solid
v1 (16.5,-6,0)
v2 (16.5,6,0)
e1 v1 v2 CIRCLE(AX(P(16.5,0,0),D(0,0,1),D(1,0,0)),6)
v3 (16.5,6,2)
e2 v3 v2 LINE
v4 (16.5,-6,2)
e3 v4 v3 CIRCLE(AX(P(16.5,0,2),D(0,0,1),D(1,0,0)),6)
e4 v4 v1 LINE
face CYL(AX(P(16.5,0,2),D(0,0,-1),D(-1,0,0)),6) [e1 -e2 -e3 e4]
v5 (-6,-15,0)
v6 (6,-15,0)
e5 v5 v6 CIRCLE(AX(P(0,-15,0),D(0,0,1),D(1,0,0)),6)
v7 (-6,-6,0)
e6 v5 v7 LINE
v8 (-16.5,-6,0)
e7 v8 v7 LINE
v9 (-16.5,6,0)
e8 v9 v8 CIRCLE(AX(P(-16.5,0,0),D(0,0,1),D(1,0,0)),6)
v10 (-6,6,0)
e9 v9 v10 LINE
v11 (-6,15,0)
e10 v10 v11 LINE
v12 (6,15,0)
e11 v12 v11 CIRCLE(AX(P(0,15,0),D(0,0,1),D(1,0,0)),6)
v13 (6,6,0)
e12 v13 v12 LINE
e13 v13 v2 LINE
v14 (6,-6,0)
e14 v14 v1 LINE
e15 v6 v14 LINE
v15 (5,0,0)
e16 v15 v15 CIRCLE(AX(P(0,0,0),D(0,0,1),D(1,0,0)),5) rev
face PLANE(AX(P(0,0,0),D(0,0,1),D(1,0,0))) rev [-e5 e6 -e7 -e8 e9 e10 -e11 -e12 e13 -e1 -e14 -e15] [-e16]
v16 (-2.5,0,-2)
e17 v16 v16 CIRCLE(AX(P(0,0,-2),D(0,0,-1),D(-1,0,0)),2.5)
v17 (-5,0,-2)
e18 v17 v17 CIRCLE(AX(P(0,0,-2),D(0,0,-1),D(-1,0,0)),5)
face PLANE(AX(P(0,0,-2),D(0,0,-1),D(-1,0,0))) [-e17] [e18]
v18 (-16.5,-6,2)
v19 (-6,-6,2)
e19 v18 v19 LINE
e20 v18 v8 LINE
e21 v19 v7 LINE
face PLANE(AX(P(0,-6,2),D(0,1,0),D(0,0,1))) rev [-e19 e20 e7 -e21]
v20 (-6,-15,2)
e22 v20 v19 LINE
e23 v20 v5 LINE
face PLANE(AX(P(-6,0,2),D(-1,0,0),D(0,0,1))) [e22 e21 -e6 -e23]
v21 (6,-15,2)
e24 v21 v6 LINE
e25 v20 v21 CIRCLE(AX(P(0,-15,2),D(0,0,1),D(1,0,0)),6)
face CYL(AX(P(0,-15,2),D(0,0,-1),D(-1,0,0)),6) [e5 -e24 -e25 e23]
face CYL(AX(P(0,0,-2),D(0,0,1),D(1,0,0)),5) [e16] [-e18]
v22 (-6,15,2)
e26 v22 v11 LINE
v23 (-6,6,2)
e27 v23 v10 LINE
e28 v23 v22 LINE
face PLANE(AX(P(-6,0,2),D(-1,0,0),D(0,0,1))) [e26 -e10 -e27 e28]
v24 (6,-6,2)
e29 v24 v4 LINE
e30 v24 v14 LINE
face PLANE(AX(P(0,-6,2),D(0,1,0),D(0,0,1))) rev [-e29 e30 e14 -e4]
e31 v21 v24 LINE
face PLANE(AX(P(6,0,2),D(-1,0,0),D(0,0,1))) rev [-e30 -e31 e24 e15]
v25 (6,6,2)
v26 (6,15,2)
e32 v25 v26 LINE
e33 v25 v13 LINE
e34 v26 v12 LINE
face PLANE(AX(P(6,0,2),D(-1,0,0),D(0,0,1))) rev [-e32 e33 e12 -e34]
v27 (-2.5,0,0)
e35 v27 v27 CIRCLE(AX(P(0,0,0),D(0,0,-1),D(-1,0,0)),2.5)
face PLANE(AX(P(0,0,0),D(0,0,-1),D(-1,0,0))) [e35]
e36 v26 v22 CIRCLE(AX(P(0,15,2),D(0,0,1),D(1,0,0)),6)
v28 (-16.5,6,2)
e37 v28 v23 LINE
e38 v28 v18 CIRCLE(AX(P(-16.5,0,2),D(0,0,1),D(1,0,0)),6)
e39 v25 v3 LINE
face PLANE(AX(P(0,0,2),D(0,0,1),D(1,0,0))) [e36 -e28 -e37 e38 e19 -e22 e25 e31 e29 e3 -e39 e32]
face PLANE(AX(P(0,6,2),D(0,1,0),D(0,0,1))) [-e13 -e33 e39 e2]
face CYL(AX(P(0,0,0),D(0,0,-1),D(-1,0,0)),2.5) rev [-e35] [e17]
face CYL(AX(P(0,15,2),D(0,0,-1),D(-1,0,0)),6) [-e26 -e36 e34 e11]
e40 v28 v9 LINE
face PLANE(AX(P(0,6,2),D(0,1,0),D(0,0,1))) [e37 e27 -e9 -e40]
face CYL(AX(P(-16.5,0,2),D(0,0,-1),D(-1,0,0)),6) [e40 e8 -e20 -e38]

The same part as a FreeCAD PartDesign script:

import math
import FreeCAD as App
import Part
import Sketcher
from FreeCAD import Vector

doc = App.newDocument("Part")
body = doc.addObject("PartDesign::Body", "Body")

sketch1 = body.newObject("Sketcher::SketchObject", "Sketch")
sketch1.AttachmentSupport = (doc.getObject("XY_Plane"), [""])
sketch1.MapMode = "FlatFace"
sketch1.addGeometry([
    Part.LineSegment(Vector(16.5, 6, 0), Vector(6, 6, 0)),
    Part.LineSegment(Vector(6, 6, 0), Vector(6, 15, 0)),
    Part.ArcOfCircle(Part.Circle(Vector(0, 15, 0), Vector(0, 0, 1), 6), math.radians(0), math.radians(180)),
    Part.LineSegment(Vector(-6, 15, 0), Vector(-6, 6, 0)),
    Part.LineSegment(Vector(-6, 6, 0), Vector(-16.5, 6, 0)),
    Part.ArcOfCircle(Part.Circle(Vector(-16.5, 0, 0), Vector(0, 0, 1), 6), math.radians(90), math.radians(270)),
    Part.LineSegment(Vector(-16.5, -6, 0), Vector(-6, -6, 0)),
    Part.LineSegment(Vector(-6, -6, 0), Vector(-6, -15, 0)),
    Part.ArcOfCircle(Part.Circle(Vector(0, -15, 0), Vector(0, 0, 1), 6), math.radians(180), math.radians(360)),
    Part.LineSegment(Vector(6, -15, 0), Vector(6, -6, 0)),
    Part.LineSegment(Vector(6, -6, 0), Vector(16.5, -6, 0)),
    Part.ArcOfCircle(Part.Circle(Vector(16.5, 0, 0), Vector(0, 0, 1), 6), math.radians(-90), math.radians(90)),
], False)
sketch1.addConstraint([
    Sketcher.Constraint("Coincident", 0, 2, 1, 1),
    Sketcher.Constraint("Tangent", 1, 2, 2, 1),
    Sketcher.Constraint("Tangent", 2, 2, 3, 1),
    Sketcher.Constraint("Coincident", 3, 2, 4, 1),
    Sketcher.Constraint("Tangent", 4, 2, 5, 1),
    Sketcher.Constraint("Tangent", 5, 2, 6, 1),
    Sketcher.Constraint("Coincident", 6, 2, 7, 1),
    Sketcher.Constraint("Tangent", 7, 2, 8, 1),
    Sketcher.Constraint("Tangent", 8, 2, 9, 1),
    Sketcher.Constraint("Coincident", 9, 2, 10, 1),
    Sketcher.Constraint("Tangent", 10, 2, 11, 1),
    Sketcher.Constraint("Tangent", 11, 2, 0, 1),
    Sketcher.Constraint("Horizontal", 0),
    Sketcher.Constraint("Vertical", 1),
    Sketcher.Constraint("Vertical", 3),
    Sketcher.Constraint("Horizontal", 4),
    Sketcher.Constraint("Horizontal", 6),
    Sketcher.Constraint("Vertical", 7),
    Sketcher.Constraint("Vertical", 9),
    Sketcher.Constraint("Horizontal", 10),
    Sketcher.Constraint("Equal", 2, 5),
    Sketcher.Constraint("Equal", 5, 8),
    Sketcher.Constraint("Equal", 8, 11),
    Sketcher.Constraint("Symmetric", 2, 3, 8, 3, -1, 1),
    Sketcher.Constraint("Symmetric", 5, 3, 11, 3, -1, 1),
    Sketcher.Constraint("Symmetric", 0, 2, 3, 2, -2),
    Sketcher.Constraint("Radius", 2, 6.0),
    Sketcher.Constraint("DistanceY", 1, 1, 1, 2, 9.0),
    Sketcher.Constraint("DistanceX", 0, 2, 0, 1, 10.5),
])
pad1 = body.newObject("PartDesign::Pad", "Pad")
pad1.Profile = sketch1
pad1.Length = 2

sketch2 = body.newObject("Sketcher::SketchObject", "Sketch001")
sketch2.AttachmentSupport = (doc.getObject("XY_Plane"), [""])
sketch2.MapMode = "FlatFace"
sketch2.addGeometry(Part.Circle(Vector(0, 0, 0), Vector(0, 0, 1), 5), False)
sketch2.addConstraint([
    Sketcher.Constraint("Coincident", 0, 3, -1, 1),
    Sketcher.Constraint("Diameter", 0, 10.0),
])
pad2 = body.newObject("PartDesign::Pad", "Pad001")
pad2.Profile = sketch2
pad2.Length = 2
pad2.Reversed = True

sketch3 = body.newObject("Sketcher::SketchObject", "Sketch002")
sketch3.AttachmentSupport = (doc.getObject("XY_Plane"), [""])
sketch3.MapMode = "FlatFace"
sketch3.AttachmentOffset = App.Placement(Vector(0, 0, -2), App.Rotation())
sketch3.addGeometry(Part.Circle(Vector(0, 0, 0), Vector(0, 0, 1), 2.5), False)
sketch3.addConstraint([
    Sketcher.Constraint("Coincident", 0, 3, -1, 1),
    Sketcher.Constraint("Diameter", 0, 5.0),
])
pocket1 = body.newObject("PartDesign::Pocket", "Pocket")
pocket1.Profile = sketch3
pocket1.Length = 2
pocket1.Reversed = True

doc.recompute()
